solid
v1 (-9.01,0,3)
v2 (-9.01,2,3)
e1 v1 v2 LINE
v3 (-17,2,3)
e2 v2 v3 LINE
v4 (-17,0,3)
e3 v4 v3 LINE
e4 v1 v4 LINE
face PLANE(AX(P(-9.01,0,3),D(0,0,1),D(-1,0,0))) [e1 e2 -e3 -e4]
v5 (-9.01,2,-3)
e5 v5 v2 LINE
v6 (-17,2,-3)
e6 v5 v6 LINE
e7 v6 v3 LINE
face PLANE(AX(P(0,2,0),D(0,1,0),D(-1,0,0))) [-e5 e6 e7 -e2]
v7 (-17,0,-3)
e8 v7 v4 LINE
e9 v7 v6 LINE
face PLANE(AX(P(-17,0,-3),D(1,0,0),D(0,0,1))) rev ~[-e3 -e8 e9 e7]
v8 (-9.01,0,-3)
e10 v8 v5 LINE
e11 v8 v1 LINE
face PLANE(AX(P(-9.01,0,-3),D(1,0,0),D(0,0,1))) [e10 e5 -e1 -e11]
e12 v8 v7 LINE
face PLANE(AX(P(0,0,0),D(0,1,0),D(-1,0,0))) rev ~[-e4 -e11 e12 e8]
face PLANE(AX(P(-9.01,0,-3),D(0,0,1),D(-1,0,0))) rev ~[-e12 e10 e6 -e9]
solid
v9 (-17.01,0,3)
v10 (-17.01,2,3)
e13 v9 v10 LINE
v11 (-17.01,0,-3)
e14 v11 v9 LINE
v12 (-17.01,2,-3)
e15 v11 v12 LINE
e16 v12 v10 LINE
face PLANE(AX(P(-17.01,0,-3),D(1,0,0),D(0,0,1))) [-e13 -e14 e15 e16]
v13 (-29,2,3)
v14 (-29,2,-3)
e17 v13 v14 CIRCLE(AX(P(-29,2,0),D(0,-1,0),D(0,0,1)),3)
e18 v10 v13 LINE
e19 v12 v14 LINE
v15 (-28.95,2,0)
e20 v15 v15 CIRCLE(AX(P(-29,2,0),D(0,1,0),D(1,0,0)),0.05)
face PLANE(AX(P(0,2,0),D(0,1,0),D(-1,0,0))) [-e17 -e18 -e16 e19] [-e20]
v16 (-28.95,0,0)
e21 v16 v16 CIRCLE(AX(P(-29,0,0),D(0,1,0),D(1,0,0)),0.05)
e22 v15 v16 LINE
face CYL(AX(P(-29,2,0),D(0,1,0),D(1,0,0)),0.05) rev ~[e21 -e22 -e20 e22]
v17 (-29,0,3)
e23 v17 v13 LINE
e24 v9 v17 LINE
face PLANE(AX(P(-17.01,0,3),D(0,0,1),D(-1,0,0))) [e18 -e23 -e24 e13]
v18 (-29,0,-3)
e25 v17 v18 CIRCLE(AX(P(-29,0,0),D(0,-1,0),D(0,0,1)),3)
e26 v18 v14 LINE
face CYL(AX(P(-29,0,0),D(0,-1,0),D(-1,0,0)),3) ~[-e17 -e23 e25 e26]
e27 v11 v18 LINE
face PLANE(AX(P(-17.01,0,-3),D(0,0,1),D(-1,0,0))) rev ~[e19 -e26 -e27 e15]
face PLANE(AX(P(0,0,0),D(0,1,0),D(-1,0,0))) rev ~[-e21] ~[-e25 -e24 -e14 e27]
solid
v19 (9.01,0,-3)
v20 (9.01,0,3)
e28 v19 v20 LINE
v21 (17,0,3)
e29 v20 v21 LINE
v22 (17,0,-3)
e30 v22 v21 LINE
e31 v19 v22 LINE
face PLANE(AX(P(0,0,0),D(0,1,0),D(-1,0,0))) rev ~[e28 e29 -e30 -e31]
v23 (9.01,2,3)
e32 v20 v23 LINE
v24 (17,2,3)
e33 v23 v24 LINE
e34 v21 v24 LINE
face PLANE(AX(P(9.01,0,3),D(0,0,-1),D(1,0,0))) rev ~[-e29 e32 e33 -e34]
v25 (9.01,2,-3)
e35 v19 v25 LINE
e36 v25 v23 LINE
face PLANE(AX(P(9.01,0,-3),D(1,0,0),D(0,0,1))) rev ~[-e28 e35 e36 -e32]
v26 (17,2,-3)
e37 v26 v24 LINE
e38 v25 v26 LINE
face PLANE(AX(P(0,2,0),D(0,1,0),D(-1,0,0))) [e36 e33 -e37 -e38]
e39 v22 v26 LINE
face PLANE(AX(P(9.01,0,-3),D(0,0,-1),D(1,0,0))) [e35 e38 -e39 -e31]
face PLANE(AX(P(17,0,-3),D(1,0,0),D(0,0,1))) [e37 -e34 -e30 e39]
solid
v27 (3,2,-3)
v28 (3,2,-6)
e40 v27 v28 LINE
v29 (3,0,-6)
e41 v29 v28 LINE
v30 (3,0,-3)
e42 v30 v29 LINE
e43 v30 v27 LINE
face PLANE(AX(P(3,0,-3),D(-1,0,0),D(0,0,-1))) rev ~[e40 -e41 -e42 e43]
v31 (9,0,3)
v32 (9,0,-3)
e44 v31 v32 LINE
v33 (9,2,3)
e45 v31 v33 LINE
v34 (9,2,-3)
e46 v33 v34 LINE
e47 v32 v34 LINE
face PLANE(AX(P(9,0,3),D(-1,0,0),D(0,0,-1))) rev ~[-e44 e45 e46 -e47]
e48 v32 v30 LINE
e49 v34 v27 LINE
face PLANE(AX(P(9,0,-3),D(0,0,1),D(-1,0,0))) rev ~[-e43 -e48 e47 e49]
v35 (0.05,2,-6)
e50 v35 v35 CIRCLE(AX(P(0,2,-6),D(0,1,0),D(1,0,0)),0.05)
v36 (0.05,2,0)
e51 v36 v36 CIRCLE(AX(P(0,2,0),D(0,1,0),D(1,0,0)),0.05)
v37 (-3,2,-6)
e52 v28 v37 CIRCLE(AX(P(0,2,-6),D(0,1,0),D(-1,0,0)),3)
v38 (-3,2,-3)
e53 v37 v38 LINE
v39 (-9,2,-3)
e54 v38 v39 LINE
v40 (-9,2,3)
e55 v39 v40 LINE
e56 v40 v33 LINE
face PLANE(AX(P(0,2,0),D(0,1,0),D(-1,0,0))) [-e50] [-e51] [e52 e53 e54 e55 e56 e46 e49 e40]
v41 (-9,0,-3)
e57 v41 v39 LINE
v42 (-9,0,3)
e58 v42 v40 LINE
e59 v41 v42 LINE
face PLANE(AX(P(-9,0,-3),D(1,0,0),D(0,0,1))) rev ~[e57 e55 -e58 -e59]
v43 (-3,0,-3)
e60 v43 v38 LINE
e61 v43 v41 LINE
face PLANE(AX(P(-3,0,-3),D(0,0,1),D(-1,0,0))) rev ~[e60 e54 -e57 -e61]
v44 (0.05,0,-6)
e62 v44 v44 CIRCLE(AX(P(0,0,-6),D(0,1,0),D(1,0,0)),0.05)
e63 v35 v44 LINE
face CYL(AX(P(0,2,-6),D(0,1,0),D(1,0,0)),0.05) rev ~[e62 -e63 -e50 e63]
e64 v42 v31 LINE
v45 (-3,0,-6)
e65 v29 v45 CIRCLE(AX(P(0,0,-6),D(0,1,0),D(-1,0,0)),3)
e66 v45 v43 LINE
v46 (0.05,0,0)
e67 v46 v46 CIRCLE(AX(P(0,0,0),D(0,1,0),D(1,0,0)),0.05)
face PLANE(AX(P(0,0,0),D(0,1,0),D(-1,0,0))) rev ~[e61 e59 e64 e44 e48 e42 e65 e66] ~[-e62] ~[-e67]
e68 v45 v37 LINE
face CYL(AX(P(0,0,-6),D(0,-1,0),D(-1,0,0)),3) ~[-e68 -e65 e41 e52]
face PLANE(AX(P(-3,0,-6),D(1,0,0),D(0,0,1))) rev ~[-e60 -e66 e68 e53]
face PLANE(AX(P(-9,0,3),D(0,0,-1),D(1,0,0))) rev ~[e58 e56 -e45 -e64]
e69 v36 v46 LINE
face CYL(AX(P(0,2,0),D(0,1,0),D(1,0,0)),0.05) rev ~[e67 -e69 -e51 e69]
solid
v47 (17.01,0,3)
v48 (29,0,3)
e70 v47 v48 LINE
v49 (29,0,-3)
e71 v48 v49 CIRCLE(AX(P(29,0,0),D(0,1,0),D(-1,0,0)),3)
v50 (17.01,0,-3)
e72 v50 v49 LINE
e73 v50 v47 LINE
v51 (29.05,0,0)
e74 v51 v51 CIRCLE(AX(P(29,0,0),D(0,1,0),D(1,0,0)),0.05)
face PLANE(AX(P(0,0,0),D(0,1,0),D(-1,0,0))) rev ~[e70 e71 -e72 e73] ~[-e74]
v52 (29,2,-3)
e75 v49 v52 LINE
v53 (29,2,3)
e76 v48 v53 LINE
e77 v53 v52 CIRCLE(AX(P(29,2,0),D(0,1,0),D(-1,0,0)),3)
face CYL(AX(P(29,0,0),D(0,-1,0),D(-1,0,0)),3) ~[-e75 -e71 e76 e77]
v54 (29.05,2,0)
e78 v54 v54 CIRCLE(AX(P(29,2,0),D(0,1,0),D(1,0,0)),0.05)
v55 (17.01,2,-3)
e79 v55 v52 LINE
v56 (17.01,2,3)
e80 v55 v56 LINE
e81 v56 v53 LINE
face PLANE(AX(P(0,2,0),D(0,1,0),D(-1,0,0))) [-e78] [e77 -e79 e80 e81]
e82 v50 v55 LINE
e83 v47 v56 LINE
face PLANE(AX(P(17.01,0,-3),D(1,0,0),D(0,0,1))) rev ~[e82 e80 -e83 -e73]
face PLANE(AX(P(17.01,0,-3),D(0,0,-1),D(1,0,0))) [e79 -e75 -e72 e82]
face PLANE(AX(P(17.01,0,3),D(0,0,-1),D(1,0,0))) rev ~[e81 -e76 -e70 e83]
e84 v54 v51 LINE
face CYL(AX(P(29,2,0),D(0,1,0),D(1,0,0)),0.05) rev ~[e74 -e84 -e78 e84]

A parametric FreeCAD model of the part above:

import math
import FreeCAD as App
import Part
import Sketcher
Q = App.Units.Quantity

doc = App.newDocument("Part")
body = doc.addObject("PartDesign::Body", "Body")
body.AllowCompound = True

# Sketch on XZ plane
sketch1 = body.newObject("Sketcher::SketchObject", "Sketch")
sketch1.AttachmentSupport = (doc.getObject("XZ_Plane"), [""])
sketch1.MapMode = "FlatFace"
sketch1.addGeometry(Part.LineSegment(App.Vector(9, 3, 0), App.Vector(9, -3, 0)), False)
sketch1.addGeometry(Part.LineSegment(App.Vector(9, -3, 0), App.Vector(3, -3, 0)), False)
sketch1.addGeometry(Part.LineSegment(App.Vector(3, -3, 0), App.Vector(3, -6, 0)), False)
sketch1.addGeometry(Part.ArcOfCircle(Part.Circle(App.Vector(0, -6, 0), App.Vector(0, 0, 1), 3), math.radians(180), math.radians(360)), False)
sketch1.addGeometry(Part.LineSegment(App.Vector(-3, -6, 0), App.Vector(-3, -3, 0)), False)
sketch1.addGeometry(Part.LineSegment(App.Vector(-3, -3, 0), App.Vector(-9, -3, 0)), False)
sketch1.addGeometry(Part.LineSegment(App.Vector(-9, -3, 0), App.Vector(-9, 3, 0)), False)
sketch1.addGeometry(Part.LineSegment(App.Vector(-9, 3, 0), App.Vector(9, 3, 0)), False)
sketch1.addGeometry(Part.LineSegment(App.Vector(-9, -3, 0), App.Vector(-17, -3, 0)), False)
sketch1.addGeometry(Part.LineSegment(App.Vector(-17, -3, 0), App.Vector(-17, 3, 0)), False)
sketch1.addGeometry(Part.LineSegment(App.Vector(-17, 3, 0), App.Vector(-9, 3, 0)), False)
sketch1.addGeometry(Part.LineSegment(App.Vector(-9, 3, 0), App.Vector(-9, -3, 0)), False)
sketch1.addGeometry(Part.LineSegment(App.Vector(-17, -3, 0), App.Vector(-29, -3, 0)), False)
sketch1.addGeometry(Part.ArcOfCircle(Part.Circle(App.Vector(-29, 0, 0), App.Vector(0, 0, 1), 3), math.radians(90), math.radians(270)), False)
sketch1.addGeometry(Part.LineSegment(App.Vector(-29, 3, 0), App.Vector(-17, 3, 0)), False)
sketch1.addGeometry(Part.LineSegment(App.Vector(-17, 3, 0), App.Vector(-17, -3, 0)), False)
sketch1.addGeometry(Part.LineSegment(App.Vector(17, 3, 0), App.Vector(17, -3, 0)), False)
sketch1.addGeometry(Part.LineSegment(App.Vector(17, -3, 0), App.Vector(9, -3, 0)), False)
sketch1.addGeometry(Part.LineSegment(App.Vector(9, -3, 0), App.Vector(9, 3, 0)), False)
sketch1.addGeometry(Part.LineSegment(App.Vector(9, 3, 0), App.Vector(17, 3, 0)), False)
sketch1.addGeometry(Part.ArcOfCircle(Part.Circle(App.Vector(29, 0, 0), App.Vector(0, 0, 1), 3), math.radians(-90), math.radians(90)), False)
sketch1.addGeometry(Part.LineSegment(App.Vector(29, -3, 0), App.Vector(17, -3, 0)), False)
sketch1.addGeometry(Part.LineSegment(App.Vector(17, -3, 0), App.Vector(17, 3, 0)), False)
sketch1.addGeometry(Part.LineSegment(App.Vector(17, 3, 0), App.Vector(29, 3, 0)), False)
sketch1.addConstraint(Sketcher.Constraint("Coincident", 0, 2, 1, 1))
sketch1.addConstraint(Sketcher.Constraint("Coincident", 1, 2, 2, 1))
sketch1.addConstraint(Sketcher.Constraint("Tangent", 2, 2, 3, 2))
sketch1.addConstraint(Sketcher.Constraint("Tangent", 3, 1, 4, 1))
sketch1.addConstraint(Sketcher.Constraint("Coincident", 4, 2, 5, 1))
sketch1.addConstraint(Sketcher.Constraint("Coincident", 5, 2, 6, 1))
sketch1.addConstraint(Sketcher.Constraint("Coincident", 6, 2, 7, 1))
sketch1.addConstraint(Sketcher.Constraint("Coincident", 7, 2, 0, 1))
sketch1.addConstraint(Sketcher.Constraint("Coincident", 8, 2, 9, 1))
sketch1.addConstraint(Sketcher.Constraint("Coincident", 9, 2, 10, 1))
sketch1.addConstraint(Sketcher.Constraint("Coincident", 10, 2, 11, 1))
sketch1.addConstraint(Sketcher.Constraint("Coincident", 11, 2, 8, 1))
sketch1.addConstraint(Sketcher.Constraint("Tangent", 12, 2, 13, 2))
sketch1.addConstraint(Sketcher.Constraint("Tangent", 13, 1, 14, 1))
sketch1.addConstraint(Sketcher.Constraint("Coincident", 14, 2, 15, 1))
sketch1.addConstraint(Sketcher.Constraint("Coincident", 15, 2, 12, 1))
sketch1.addConstraint(Sketcher.Constraint("Coincident", 16, 2, 17, 1))
sketch1.addConstraint(Sketcher.Constraint("Coincident", 17, 2, 18, 1))
sketch1.addConstraint(Sketcher.Constraint("Coincident", 18, 2, 19, 1))
sketch1.addConstraint(Sketcher.Constraint("Coincident", 19, 2, 16, 1))
sketch1.addConstraint(Sketcher.Constraint("Tangent", 20, 1, 21, 1))
sketch1.addConstraint(Sketcher.Constraint("Coincident", 21, 2, 22, 1))
sketch1.addConstraint(Sketcher.Constraint("Coincident", 22, 2, 23, 1))
sketch1.addConstraint(Sketcher.Constraint("Tangent", 23, 2, 20, 2))
sketch1.addConstraint(Sketcher.Constraint("Vertical", 0))
sketch1.addConstraint(Sketcher.Constraint("Horizontal", 1))
sketch1.addConstraint(Sketcher.Constraint("Vertical", 2))
sketch1.addConstraint(Sketcher.Constraint("Vertical", 4))
sketch1.addConstraint(Sketcher.Constraint("Horizontal", 5))
sketch1.addConstraint(Sketcher.Constraint("Vertical", 6))
sketch1.addConstraint(Sketcher.Constraint("Horizontal", 7))
sketch1.addConstraint(Sketcher.Constraint("Horizontal", 8))
sketch1.addConstraint(Sketcher.Constraint("Vertical", 9))
sketch1.addConstraint(Sketcher.Constraint("Horizontal", 10))
sketch1.addConstraint(Sketcher.Constraint("Vertical", 11))
sketch1.addConstraint(Sketcher.Constraint("Horizontal", 12))
sketch1.addConstraint(Sketcher.Constraint("Horizontal", 14))
sketch1.addConstraint(Sketcher.Constraint("Vertical", 15))
sketch1.addConstraint(Sketcher.Constraint("Vertical", 16))
sketch1.addConstraint(Sketcher.Constraint("Horizontal", 17))
sketch1.addConstraint(Sketcher.Constraint("Vertical", 18))
sketch1.addConstraint(Sketcher.Constraint("Horizontal", 19))
sketch1.addConstraint(Sketcher.Constraint("Horizontal", 21))
sketch1.addConstraint(Sketcher.Constraint("Vertical", 22))
sketch1.addConstraint(Sketcher.Constraint("Horizontal", 23))
sketch1.addConstraint(Sketcher.Constraint("Equal", 3, 13))
sketch1.addConstraint(Sketcher.Constraint("Equal", 13, 20))
sketch1.addConstraint(Sketcher.Constraint("Symmetric", 13, 3, 20, 3, -1, 1))
sketch1.addConstraint(Sketcher.Constraint("Symmetric", 0, 2, 6, 2, -1, 1))
sketch1.addConstraint(Sketcher.Constraint("Symmetric", 9, 2, 16, 2, -1, 1))
sketch1.addConstraint(Sketcher.Constraint("Symmetric", 11, 2, 18, 2, -1, 1))
sketch1.addConstraint(Sketcher.Constraint("Symmetric", 1, 2, 4, 2, -2))
sketch1.addConstraint(Sketcher.Constraint("Symmetric", 15, 2, 21, 2, -2))
sketch1.addConstraint(Sketcher.Constraint("Horizontal", 5, 2, 8, 2))
sketch1.addConstraint(Sketcher.Constraint("Horizontal", 7, 2, 9, 2))
sketch1.addConstraint(Sketcher.Constraint("Horizontal", 11, 2, 12, 2))
sketch1.addConstraint(Sketcher.Constraint("Equal", 5, 0))
sketch1.addConstraint(Sketcher.Constraint("Radius", 3, Q("3 mm")))
sketch1.addConstraint(Sketcher.Constraint("DistanceY", 2, 2, 2, 1, Q("3 mm")))
sketch1.addConstraint(Sketcher.Constraint("DistanceX", 8, 2, 5, 2, Q("8 mm")))
sketch1.addConstraint(Sketcher.Constraint("DistanceX", 13, 3, 8, 2, Q("12 mm")))
sketch1.addConstraint(Sketcher.Constraint("DistanceX", 14, 2, 10, 2, Q("8 mm")))
sketch1.addConstraint(Sketcher.Constraint("DistanceX", 10, 2, 6, 2, Q("0.01 mm")))
pad1 = body.newObject("PartDesign::Pad", "Pad")
pad1.Profile = sketch1
pad1.Length = 2
pad1.Reversed = True

# Sketch on XZ plane
sketch2 = body.newObject("Sketcher::SketchObject", "Sketch001")
sketch2.AttachmentSupport = (doc.getObject("XZ_Plane"), [""])
sketch2.MapMode = "FlatFace"
sketch2.AttachmentOffset = App.Placement(App.Vector(0, 0, -2), App.Rotation())
sketch2.addGeometry(Part.Circle(App.Vector(0, -6, 0), App.Vector(0, 0, 1), 0.05), False)
sketch2.addGeometry(Part.Circle(App.Vector(0, 0, 0), App.Vector(0, 0, 1), 0.05), False)
sketch2.addConstraint(Sketcher.Constraint("Coincident", 1, 3, -1, 1))
sketch2.addConstraint(Sketcher.Constraint("Equal", 0, 1))
sketch2.addConstraint(Sketcher.Constraint("PointOnObject", 0, 3, -2))
sketch2.addConstraint(Sketcher.Constraint("Diameter", 0, Q("0.1 mm")))
sketch2.addConstraint(Sketcher.Constraint("DistanceY", 0, 3, -1, 1, Q("6 mm")))
pocket1 = body.newObject("PartDesign::Pocket", "Pocket")
pocket1.Profile = sketch2
pocket1.Length = 2
pocket1.Reversed = True

# Sketch on XZ plane
sketch3 = body.newObject("Sketcher::SketchObject", "Sketch002")
sketch3.AttachmentSupport = (doc.getObject("XZ_Plane"), [""])
sketch3.MapMode = "FlatFace"
sketch3.AttachmentOffset = App.Placement(App.Vector(0, 0, -2), App.Rotation())
sketch3.addGeometry(Part.Circle(App.Vector(-29, 0, 0), App.Vector(0, 0, 1), 0.05), False)
sketch3.addConstraint(Sketcher.Constraint("PointOnObject", 0, 3, -1))
sketch3.addConstraint(Sketcher.Constraint("Diameter", 0, Q("0.1 mm")))
sketch3.addConstraint(Sketcher.Constraint("DistanceX", 0, 3, -1, 1, Q("29 mm")))
pocket2 = body.newObject("PartDesign::Pocket", "Pocket001")
pocket2.Profile = sketch3
pocket2.Length = 2
pocket2.Reversed = True

# Sketch on XZ plane
sketch4 = body.newObject("Sketcher::SketchObject", "Sketch003")
sketch4.AttachmentSupport = (doc.getObject("XZ_Plane"), [""])
sketch4.MapMode = "FlatFace"
sketch4.AttachmentOffset = App.Placement(App.Vector(0, 0, -2), App.Rotation())
sketch4.addGeometry(Part.Circle(App.Vector(29, 0, 0), App.Vector(0, 0, 1), 0.05), False)
sketch4.addConstraint(Sketcher.Constraint("PointOnObject", 0, 3, -1))
sketch4.addConstraint(Sketcher.Constraint("Diameter", 0, Q("0.1 mm")))
sketch4.addConstraint(Sketcher.Constraint("DistanceX", -1, 1, 0, 3, Q("29 mm")))
pocket3 = body.newObject("PartDesign::Pocket", "Pocket002")
pocket3.Profile = sketch4
pocket3.Length = 2
pocket3.Reversed = True

doc.recompute()
